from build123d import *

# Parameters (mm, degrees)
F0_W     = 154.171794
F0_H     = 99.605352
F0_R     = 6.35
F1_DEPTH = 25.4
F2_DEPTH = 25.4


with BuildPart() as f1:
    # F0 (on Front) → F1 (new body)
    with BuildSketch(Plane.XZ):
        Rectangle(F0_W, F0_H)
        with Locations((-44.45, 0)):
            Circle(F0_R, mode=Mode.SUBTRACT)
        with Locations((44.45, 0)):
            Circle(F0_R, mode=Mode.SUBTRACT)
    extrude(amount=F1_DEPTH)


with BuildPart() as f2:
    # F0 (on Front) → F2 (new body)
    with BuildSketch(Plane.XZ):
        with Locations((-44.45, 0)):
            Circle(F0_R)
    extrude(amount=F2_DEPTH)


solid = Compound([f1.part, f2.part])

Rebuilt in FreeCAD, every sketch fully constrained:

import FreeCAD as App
import Part
import Sketcher

V = App.Vector
Q = App.Units.Quantity

doc = App.newDocument("Part")
body = doc.addObject("PartDesign::Body", "Body")

sketch1 = body.newObject("Sketcher::SketchObject", "Sketch")
sketch1.AttachmentSupport = (doc.getObject("XZ_Plane"), [""])
sketch1.MapMode = "FlatFace"
sketch1.addGeometry([
    Part.LineSegment(V(-77, 50, 0), V(-77, -50, 0)),
    Part.LineSegment(V(-77, -50, 0), V(77, -50, 0)),
    Part.LineSegment(V(77, -50, 0), V(77, 50, 0)),
    Part.LineSegment(V(77, 50, 0), V(-77, 50, 0)),
    Part.Circle(V(-44, 0, 0), V(0, 0, 1), 6),
    Part.Circle(V(44, 0, 0), V(0, 0, 1), 6),
], False)
sketch1.addConstraint([
    Sketcher.Constraint("Coincident", 0, 2, 1, 1),
    Sketcher.Constraint("Coincident", 1, 2, 2, 1),
    Sketcher.Constraint("Coincident", 2, 2, 3, 1),
    Sketcher.Constraint("Coincident", 3, 2, 0, 1),
    Sketcher.Constraint("Vertical", 0),
    Sketcher.Constraint("Horizontal", 1),
    Sketcher.Constraint("Vertical", 2),
    Sketcher.Constraint("Horizontal", 3),
    Sketcher.Constraint("Equal", 4, 5),
    Sketcher.Constraint("Symmetric", 4, 3, 5, 3, -1, 1),
    Sketcher.Constraint("Symmetric", 0, 2, 2, 2, -1, 1),
    Sketcher.Constraint("PointOnObject", 4, 3, -1),
    Sketcher.Constraint("Diameter", 4, Q("0.5 in")),
    Sketcher.Constraint("DistanceX", 4, 3, 5, 3, Q("3.5 in")),
    Sketcher.Constraint("DistanceY", 0, 2, 0, 1, 99.605352),
    Sketcher.Constraint("DistanceX", 1, 1, 1, 2, 154.171794),
])
pad1 = body.newObject("PartDesign::Pad", "Pad")
pad1.Profile = sketch1
pad1.Length = Q("1 in")
body2 = doc.addObject("PartDesign::Body", "Body001")

sketch2 = body2.newObject("Sketcher::SketchObject", "Sketch001")
sketch2.AttachmentSupport = (doc.getObject("XZ_Plane001"), [""])
sketch2.MapMode = "FlatFace"
sketch2.addGeometry(Part.Circle(V(-44, 0, 0), V(0, 0, 1), 6), False)
sketch2.addConstraint([
    Sketcher.Constraint("PointOnObject", 0, 3, -1),
    Sketcher.Constraint("Diameter", 0, Q("0.5 in")),
    Sketcher.Constraint("DistanceX", 0, 3, -1, 1, Q("1.75 in")),
])
pad2 = body2.newObject("PartDesign::Pad", "Pad001")
pad2.Profile = sketch2
pad2.Length = Q("1 in")

doc.recompute()
